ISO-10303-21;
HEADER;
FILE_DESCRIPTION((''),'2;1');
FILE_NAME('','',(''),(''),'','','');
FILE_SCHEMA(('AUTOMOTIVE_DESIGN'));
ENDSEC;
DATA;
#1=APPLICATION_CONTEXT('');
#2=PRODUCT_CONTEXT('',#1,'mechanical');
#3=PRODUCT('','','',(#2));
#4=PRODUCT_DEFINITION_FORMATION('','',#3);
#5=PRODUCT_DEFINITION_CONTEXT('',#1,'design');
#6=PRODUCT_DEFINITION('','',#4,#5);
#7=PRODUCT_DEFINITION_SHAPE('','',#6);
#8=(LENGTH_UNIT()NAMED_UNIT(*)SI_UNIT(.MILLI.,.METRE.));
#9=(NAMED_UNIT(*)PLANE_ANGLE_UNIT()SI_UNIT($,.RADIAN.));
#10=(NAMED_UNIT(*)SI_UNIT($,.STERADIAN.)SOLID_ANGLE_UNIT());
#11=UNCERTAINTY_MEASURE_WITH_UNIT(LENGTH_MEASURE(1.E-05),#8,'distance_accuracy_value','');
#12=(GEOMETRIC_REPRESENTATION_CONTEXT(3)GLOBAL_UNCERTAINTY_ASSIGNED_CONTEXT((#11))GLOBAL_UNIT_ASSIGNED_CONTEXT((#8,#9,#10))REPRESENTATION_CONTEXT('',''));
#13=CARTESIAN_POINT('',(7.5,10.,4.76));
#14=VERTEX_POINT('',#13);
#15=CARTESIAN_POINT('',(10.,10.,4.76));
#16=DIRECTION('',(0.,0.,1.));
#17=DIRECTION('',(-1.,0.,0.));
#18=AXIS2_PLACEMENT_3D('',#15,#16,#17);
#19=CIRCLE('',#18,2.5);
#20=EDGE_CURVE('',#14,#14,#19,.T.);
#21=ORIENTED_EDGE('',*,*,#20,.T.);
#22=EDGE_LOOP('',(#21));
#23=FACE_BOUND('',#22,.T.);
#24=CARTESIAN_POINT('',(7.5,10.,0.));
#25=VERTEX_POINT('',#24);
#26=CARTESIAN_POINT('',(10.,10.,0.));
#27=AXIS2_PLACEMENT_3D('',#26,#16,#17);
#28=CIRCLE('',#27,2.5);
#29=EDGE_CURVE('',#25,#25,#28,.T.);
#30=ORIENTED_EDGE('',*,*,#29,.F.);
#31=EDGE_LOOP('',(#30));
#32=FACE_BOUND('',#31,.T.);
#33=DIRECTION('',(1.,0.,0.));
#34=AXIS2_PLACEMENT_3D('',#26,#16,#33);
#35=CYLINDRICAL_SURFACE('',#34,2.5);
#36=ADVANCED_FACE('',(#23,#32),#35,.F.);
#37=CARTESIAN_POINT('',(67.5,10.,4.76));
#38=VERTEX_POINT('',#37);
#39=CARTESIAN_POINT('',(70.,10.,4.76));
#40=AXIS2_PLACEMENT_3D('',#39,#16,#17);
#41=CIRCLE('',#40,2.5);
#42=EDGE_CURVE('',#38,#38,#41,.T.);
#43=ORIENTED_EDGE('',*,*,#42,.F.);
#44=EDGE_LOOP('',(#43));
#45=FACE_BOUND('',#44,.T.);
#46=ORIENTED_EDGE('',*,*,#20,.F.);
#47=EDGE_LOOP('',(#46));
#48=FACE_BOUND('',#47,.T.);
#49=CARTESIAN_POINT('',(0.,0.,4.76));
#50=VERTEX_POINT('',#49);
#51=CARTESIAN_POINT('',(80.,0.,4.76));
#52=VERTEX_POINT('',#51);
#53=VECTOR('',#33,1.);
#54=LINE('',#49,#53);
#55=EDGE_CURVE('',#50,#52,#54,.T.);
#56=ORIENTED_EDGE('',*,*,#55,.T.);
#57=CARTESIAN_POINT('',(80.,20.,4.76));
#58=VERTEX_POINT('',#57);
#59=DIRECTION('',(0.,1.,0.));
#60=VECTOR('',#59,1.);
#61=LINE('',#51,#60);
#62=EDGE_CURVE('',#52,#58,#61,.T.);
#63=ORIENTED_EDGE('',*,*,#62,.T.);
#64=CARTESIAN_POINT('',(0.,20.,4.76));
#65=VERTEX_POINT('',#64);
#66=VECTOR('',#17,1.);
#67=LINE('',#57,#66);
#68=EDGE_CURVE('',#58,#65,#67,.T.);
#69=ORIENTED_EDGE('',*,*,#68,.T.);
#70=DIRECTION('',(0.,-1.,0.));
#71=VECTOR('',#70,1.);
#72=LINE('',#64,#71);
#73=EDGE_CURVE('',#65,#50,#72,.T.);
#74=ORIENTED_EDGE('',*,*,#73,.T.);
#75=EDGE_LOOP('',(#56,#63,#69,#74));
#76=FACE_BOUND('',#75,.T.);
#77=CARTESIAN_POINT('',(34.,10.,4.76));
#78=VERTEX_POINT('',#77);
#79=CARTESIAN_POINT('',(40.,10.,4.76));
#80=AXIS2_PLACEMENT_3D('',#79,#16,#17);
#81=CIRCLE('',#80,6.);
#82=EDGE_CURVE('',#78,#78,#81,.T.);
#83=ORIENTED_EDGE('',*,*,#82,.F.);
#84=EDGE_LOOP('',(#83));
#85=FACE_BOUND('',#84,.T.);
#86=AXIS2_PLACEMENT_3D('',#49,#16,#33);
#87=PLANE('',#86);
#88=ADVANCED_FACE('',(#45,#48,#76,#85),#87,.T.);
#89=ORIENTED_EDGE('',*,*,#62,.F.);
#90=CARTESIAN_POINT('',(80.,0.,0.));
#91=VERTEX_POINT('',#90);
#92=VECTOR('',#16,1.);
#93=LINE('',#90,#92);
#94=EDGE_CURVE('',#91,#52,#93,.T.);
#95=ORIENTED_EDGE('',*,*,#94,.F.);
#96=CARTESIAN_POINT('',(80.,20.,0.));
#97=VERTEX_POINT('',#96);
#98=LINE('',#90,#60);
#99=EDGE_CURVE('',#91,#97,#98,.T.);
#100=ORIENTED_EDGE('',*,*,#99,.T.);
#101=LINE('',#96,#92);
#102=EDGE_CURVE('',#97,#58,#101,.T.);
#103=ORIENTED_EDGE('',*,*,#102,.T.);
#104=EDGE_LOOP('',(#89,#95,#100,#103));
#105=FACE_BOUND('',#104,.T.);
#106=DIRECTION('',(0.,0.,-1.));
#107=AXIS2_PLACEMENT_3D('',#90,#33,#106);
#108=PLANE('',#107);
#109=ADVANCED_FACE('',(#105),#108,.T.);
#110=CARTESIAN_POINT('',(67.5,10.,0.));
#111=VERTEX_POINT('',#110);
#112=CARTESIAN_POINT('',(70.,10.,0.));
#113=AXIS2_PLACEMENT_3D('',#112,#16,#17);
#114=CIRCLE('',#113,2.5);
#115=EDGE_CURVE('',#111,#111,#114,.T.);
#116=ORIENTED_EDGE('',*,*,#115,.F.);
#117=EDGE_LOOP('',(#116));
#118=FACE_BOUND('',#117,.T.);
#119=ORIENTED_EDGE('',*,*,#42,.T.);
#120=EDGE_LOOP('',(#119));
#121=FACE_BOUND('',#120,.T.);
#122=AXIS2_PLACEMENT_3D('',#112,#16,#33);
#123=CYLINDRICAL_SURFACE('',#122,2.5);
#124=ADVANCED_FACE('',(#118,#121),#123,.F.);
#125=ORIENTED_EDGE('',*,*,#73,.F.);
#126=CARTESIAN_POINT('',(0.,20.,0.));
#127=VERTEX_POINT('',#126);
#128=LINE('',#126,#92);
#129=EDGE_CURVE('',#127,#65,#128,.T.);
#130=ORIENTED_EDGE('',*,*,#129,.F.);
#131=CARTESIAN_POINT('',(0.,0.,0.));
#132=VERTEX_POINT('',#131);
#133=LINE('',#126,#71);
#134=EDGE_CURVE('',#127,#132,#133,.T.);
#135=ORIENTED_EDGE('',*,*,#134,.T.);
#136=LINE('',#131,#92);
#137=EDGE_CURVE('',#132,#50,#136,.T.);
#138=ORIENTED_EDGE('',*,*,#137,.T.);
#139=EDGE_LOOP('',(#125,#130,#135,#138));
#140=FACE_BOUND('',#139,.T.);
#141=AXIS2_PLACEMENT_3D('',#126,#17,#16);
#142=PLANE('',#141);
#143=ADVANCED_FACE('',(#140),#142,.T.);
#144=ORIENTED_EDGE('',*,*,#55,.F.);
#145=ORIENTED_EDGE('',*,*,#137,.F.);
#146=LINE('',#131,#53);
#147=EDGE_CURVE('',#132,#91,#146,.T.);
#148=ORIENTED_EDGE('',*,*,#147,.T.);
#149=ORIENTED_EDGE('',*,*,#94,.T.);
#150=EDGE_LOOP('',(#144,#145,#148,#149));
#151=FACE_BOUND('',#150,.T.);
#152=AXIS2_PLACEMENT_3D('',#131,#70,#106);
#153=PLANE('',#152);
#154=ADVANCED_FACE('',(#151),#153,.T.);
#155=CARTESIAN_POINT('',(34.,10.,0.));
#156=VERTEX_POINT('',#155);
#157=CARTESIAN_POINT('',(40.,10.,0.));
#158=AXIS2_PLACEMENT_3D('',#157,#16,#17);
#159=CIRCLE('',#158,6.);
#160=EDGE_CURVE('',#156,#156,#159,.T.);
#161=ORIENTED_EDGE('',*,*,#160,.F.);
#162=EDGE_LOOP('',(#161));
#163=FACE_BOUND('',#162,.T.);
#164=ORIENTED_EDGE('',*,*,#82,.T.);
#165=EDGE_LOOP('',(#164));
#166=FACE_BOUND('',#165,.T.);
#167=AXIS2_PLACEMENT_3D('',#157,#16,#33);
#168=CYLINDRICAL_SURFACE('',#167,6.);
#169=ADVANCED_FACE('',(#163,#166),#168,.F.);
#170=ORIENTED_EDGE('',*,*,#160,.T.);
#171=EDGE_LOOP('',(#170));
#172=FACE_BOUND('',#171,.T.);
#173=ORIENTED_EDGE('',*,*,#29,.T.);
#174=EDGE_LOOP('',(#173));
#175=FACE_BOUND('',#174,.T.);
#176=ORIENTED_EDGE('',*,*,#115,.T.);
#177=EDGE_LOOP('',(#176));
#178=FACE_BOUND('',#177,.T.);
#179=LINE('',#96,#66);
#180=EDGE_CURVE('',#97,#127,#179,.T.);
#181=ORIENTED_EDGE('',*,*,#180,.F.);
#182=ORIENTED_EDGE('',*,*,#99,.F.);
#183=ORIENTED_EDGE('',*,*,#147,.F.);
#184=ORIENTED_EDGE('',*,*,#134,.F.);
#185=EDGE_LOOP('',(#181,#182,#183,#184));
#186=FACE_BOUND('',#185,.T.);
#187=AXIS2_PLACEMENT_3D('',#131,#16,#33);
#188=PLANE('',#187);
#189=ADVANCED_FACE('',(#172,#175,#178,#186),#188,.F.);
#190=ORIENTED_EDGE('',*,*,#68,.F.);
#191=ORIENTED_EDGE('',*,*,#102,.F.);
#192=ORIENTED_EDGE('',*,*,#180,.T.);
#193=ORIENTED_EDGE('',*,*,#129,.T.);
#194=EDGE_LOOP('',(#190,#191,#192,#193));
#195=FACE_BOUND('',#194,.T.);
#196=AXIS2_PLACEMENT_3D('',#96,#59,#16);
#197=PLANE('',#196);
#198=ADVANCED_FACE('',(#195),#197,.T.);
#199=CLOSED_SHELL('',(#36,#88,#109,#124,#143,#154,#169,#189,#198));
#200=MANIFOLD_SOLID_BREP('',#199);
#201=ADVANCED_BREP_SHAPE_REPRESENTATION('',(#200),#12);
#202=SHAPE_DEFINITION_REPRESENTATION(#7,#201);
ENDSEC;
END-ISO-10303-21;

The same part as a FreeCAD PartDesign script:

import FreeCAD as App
import Part
import Sketcher

V = App.Vector

doc = App.newDocument("Part")
body = doc.addObject("PartDesign::Body", "Body")

sketch1 = doc.addObject("Sketcher::SketchObject", "Sketch")
body.addObject(sketch1)
sketch1.AttachmentSupport = (doc.XY_Plane, [""])
sketch1.MapMode = "FlatFace"
sketch1.AttachmentOffset = App.Placement(V(0, 0, 4.76), App.Rotation())
sketch1.addGeometry([
    Part.LineSegment(V(0, 20, 0), V(0, 0, 0)),
    Part.LineSegment(V(0, 0, 0), V(80, 0, 0)),
    Part.LineSegment(V(80, 0, 0), V(80, 20, 0)),
    Part.LineSegment(V(80, 20, 0), V(0, 20, 0)),
    Part.Circle(V(10, 10, 0), V(0, 0, 1), 2.5),
    Part.Circle(V(40, 10, 0), V(0, 0, 1), 6),
    Part.Circle(V(70, 10, 0), V(0, 0, 1), 2.5),
], False)
sketch1.addConstraint([
    Sketcher.Constraint("Coincident", 0, 2, 1, 1),
    Sketcher.Constraint("Coincident", 1, 2, 2, 1),
    Sketcher.Constraint("Coincident", 2, 2, 3, 1),
    Sketcher.Constraint("Coincident", 3, 2, 0, 1),
    Sketcher.Constraint("Vertical", 0),
    Sketcher.Constraint("Horizontal", 1),
    Sketcher.Constraint("Vertical", 2),
    Sketcher.Constraint("Horizontal", 3),
    Sketcher.Constraint("Coincident", 0, 2, -1, 1),
    Sketcher.Constraint("Equal", 4, 6),
    Sketcher.Constraint("Horizontal", 4, 3, 5, 3),
    Sketcher.Constraint("Horizontal", 5, 3, 6, 3),
    Sketcher.Constraint("Diameter", 4, 5.0),
    Sketcher.Constraint("Diameter", 5, 12.0),
    Sketcher.Constraint("DistanceX", 1, 1, 1, 2, 80.0),
    Sketcher.Constraint("DistanceY", 0, 2, 0, 1, 20.0),
    Sketcher.Constraint("DistanceX", -1, 1, 4, 3, 10.0),
    Sketcher.Constraint("DistanceY", -1, 1, 4, 3, 10.0),
    Sketcher.Constraint("DistanceX", -1, 1, 5, 3, 40.0),
    Sketcher.Constraint("DistanceX", -1, 1, 6, 3, 70.0),
])
pad1 = doc.addObject("PartDesign::Pad", "Pad")
body.addObject(pad1)
pad1.Profile = sketch1
pad1.Length = 4.76
pad1.Reversed = True

doc.recompute()
